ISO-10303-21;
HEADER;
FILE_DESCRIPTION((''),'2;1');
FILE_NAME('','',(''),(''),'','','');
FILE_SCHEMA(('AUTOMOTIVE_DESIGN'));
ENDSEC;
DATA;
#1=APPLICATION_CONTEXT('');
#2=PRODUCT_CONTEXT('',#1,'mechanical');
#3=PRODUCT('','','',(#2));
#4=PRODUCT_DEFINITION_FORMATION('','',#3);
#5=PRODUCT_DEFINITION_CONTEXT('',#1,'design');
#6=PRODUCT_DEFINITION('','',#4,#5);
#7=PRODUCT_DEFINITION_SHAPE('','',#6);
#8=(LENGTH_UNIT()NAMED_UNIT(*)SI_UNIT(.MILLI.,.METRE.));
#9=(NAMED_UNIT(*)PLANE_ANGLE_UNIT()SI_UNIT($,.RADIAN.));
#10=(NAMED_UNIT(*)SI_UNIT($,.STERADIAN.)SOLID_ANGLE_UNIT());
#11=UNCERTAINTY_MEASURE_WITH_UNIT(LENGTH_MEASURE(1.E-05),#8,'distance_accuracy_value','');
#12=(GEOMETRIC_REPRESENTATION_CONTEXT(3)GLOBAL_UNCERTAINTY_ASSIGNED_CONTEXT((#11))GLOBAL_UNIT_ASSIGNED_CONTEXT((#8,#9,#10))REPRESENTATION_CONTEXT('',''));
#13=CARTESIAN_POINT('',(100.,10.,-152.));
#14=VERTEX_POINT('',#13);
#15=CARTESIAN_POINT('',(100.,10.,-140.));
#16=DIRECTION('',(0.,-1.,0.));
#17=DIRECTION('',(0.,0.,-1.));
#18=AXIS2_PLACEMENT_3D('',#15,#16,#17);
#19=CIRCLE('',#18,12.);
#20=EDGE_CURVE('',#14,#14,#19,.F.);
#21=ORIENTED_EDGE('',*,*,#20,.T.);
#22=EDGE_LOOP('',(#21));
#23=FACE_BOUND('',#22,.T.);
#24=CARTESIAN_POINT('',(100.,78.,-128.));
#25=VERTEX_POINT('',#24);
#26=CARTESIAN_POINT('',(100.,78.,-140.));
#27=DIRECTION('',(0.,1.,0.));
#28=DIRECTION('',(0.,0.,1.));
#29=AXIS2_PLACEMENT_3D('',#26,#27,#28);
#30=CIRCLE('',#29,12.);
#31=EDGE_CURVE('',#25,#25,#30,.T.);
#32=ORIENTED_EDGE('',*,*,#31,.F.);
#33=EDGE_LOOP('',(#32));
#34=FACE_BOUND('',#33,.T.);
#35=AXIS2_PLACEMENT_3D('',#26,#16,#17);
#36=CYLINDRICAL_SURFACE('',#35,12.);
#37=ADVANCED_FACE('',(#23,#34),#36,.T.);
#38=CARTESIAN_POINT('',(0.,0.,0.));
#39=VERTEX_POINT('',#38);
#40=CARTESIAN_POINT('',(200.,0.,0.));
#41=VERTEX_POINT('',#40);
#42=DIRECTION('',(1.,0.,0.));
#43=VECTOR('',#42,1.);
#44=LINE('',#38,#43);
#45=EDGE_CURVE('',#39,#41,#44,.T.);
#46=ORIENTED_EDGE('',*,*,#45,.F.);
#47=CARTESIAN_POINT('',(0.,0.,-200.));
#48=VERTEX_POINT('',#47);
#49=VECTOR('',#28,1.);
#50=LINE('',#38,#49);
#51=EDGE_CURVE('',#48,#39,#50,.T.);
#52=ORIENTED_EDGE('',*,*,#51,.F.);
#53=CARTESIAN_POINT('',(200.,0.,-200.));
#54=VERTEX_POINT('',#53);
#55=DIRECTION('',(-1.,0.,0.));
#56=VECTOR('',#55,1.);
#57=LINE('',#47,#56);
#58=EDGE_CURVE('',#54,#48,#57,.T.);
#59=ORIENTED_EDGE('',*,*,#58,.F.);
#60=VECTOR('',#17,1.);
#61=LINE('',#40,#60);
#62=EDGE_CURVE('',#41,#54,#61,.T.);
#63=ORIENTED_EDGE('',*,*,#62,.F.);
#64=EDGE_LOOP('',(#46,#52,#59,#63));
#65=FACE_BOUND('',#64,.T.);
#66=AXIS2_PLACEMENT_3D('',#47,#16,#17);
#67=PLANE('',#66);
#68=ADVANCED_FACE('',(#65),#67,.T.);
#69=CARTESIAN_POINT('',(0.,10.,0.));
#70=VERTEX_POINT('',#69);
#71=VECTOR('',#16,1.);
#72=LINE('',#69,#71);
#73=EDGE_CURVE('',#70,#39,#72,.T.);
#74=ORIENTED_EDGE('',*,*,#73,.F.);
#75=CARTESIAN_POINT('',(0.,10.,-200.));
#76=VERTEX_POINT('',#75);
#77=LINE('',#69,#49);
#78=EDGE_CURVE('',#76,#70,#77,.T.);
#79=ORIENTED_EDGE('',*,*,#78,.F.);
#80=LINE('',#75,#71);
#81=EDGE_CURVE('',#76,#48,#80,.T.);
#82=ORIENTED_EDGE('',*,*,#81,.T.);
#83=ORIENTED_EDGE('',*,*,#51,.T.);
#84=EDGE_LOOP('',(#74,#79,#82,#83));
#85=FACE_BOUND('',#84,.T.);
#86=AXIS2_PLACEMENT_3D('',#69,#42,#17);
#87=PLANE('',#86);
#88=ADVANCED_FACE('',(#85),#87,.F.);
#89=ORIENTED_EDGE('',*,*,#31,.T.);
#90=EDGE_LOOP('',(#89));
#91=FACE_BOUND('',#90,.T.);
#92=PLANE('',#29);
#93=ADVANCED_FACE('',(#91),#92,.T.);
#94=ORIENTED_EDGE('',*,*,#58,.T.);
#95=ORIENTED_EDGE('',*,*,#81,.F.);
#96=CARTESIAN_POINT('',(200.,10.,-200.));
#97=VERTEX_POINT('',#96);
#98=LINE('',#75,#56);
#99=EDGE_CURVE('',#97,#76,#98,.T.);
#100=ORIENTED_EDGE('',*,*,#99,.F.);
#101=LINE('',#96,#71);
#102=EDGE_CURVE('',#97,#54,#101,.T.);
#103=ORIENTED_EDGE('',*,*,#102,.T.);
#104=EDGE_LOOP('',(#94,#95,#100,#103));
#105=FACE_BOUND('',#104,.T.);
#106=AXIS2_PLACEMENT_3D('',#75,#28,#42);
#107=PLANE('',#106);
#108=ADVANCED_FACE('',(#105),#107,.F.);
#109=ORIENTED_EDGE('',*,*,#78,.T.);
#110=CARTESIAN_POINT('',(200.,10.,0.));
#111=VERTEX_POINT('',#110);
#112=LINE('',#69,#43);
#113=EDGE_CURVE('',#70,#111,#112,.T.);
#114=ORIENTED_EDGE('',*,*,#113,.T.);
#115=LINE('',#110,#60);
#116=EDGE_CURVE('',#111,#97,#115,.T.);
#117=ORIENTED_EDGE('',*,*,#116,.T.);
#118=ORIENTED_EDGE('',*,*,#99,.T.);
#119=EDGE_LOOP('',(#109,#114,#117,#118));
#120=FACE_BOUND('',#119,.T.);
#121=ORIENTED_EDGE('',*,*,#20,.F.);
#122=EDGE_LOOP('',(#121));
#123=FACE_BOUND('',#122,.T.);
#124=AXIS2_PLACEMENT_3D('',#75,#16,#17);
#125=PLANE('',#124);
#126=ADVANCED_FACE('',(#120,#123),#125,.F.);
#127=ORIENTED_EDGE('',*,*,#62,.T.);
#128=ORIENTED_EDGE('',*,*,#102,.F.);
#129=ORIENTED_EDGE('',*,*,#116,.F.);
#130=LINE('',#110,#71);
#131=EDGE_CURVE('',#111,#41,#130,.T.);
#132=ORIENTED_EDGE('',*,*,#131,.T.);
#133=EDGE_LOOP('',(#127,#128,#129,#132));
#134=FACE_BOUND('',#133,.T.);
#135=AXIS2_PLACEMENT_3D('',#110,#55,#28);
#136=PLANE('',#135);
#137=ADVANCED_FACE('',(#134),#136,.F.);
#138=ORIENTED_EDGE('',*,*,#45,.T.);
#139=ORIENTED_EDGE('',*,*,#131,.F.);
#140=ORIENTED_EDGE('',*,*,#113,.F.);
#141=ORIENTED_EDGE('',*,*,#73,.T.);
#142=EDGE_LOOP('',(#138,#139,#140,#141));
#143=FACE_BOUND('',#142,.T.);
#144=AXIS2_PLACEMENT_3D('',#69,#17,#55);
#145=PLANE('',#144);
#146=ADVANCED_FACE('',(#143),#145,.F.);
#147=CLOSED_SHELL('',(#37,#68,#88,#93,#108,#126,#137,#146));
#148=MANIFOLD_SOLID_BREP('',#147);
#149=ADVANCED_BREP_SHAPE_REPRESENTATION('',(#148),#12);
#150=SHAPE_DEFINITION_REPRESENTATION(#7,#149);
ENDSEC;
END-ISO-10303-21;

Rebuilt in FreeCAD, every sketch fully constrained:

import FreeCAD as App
import Part
import Sketcher

V = App.Vector

doc = App.newDocument("Part")
body = doc.addObject("PartDesign::Body", "Body")

# Sketch on XZ plane
sketch1 = doc.addObject("Sketcher::SketchObject", "Sketch")
body.addObject(sketch1)
sketch1.AttachmentSupport = (doc.XZ_Plane, [""])
sketch1.MapMode = "FlatFace"
sketch1.addGeometry([
    Part.LineSegment(V(0, -200, 0), V(0, 0, 0)),
    Part.LineSegment(V(0, 0, 0), V(200, 0, 0)),
    Part.LineSegment(V(200, 0, 0), V(200, -200, 0)),
    Part.LineSegment(V(200, -200, 0), V(0, -200, 0)),
], False)
sketch1.addConstraint([
    Sketcher.Constraint("Coincident", 0, 2, 1, 1),
    Sketcher.Constraint("Coincident", 1, 2, 2, 1),
    Sketcher.Constraint("Coincident", 2, 2, 3, 1),
    Sketcher.Constraint("Coincident", 3, 2, 0, 1),
    Sketcher.Constraint("Vertical", 0),
    Sketcher.Constraint("Horizontal", 1),
    Sketcher.Constraint("Vertical", 2),
    Sketcher.Constraint("Horizontal", 3),
    Sketcher.Constraint("Coincident", 0, 2, -1, 1),
    Sketcher.Constraint("Equal", 3, 0),
    Sketcher.Constraint("DistanceX", 1, 1, 1, 2, 200.0),
])
pad1 = doc.addObject("PartDesign::Pad", "Pad")
body.addObject(pad1)
pad1.Profile = sketch1
pad1.Length = 10
pad1.Reversed = True

# Sketch on XZ plane
sketch2 = doc.addObject("Sketcher::SketchObject", "Sketch001")
body.addObject(sketch2)
sketch2.AttachmentSupport = (doc.XZ_Plane, [""])
sketch2.MapMode = "FlatFace"
sketch2.AttachmentOffset = App.Placement(V(0, 0, -10), App.Rotation())
sketch2.addGeometry(Part.Circle(V(100, -140, 0), V(0, 0, 1), 12), False)
sketch2.addConstraint([
    Sketcher.Constraint("Diameter", 0, 24.0),
    Sketcher.Constraint("DistanceX", -1, 1, 0, 3, 100.0),
    Sketcher.Constraint("DistanceY", 0, 3, -1, 1, 140.0),
])
pad2 = doc.addObject("PartDesign::Pad", "Pad001")
body.addObject(pad2)
pad2.Profile = sketch2
pad2.Length = 68
pad2.Reversed = True

doc.recompute()
